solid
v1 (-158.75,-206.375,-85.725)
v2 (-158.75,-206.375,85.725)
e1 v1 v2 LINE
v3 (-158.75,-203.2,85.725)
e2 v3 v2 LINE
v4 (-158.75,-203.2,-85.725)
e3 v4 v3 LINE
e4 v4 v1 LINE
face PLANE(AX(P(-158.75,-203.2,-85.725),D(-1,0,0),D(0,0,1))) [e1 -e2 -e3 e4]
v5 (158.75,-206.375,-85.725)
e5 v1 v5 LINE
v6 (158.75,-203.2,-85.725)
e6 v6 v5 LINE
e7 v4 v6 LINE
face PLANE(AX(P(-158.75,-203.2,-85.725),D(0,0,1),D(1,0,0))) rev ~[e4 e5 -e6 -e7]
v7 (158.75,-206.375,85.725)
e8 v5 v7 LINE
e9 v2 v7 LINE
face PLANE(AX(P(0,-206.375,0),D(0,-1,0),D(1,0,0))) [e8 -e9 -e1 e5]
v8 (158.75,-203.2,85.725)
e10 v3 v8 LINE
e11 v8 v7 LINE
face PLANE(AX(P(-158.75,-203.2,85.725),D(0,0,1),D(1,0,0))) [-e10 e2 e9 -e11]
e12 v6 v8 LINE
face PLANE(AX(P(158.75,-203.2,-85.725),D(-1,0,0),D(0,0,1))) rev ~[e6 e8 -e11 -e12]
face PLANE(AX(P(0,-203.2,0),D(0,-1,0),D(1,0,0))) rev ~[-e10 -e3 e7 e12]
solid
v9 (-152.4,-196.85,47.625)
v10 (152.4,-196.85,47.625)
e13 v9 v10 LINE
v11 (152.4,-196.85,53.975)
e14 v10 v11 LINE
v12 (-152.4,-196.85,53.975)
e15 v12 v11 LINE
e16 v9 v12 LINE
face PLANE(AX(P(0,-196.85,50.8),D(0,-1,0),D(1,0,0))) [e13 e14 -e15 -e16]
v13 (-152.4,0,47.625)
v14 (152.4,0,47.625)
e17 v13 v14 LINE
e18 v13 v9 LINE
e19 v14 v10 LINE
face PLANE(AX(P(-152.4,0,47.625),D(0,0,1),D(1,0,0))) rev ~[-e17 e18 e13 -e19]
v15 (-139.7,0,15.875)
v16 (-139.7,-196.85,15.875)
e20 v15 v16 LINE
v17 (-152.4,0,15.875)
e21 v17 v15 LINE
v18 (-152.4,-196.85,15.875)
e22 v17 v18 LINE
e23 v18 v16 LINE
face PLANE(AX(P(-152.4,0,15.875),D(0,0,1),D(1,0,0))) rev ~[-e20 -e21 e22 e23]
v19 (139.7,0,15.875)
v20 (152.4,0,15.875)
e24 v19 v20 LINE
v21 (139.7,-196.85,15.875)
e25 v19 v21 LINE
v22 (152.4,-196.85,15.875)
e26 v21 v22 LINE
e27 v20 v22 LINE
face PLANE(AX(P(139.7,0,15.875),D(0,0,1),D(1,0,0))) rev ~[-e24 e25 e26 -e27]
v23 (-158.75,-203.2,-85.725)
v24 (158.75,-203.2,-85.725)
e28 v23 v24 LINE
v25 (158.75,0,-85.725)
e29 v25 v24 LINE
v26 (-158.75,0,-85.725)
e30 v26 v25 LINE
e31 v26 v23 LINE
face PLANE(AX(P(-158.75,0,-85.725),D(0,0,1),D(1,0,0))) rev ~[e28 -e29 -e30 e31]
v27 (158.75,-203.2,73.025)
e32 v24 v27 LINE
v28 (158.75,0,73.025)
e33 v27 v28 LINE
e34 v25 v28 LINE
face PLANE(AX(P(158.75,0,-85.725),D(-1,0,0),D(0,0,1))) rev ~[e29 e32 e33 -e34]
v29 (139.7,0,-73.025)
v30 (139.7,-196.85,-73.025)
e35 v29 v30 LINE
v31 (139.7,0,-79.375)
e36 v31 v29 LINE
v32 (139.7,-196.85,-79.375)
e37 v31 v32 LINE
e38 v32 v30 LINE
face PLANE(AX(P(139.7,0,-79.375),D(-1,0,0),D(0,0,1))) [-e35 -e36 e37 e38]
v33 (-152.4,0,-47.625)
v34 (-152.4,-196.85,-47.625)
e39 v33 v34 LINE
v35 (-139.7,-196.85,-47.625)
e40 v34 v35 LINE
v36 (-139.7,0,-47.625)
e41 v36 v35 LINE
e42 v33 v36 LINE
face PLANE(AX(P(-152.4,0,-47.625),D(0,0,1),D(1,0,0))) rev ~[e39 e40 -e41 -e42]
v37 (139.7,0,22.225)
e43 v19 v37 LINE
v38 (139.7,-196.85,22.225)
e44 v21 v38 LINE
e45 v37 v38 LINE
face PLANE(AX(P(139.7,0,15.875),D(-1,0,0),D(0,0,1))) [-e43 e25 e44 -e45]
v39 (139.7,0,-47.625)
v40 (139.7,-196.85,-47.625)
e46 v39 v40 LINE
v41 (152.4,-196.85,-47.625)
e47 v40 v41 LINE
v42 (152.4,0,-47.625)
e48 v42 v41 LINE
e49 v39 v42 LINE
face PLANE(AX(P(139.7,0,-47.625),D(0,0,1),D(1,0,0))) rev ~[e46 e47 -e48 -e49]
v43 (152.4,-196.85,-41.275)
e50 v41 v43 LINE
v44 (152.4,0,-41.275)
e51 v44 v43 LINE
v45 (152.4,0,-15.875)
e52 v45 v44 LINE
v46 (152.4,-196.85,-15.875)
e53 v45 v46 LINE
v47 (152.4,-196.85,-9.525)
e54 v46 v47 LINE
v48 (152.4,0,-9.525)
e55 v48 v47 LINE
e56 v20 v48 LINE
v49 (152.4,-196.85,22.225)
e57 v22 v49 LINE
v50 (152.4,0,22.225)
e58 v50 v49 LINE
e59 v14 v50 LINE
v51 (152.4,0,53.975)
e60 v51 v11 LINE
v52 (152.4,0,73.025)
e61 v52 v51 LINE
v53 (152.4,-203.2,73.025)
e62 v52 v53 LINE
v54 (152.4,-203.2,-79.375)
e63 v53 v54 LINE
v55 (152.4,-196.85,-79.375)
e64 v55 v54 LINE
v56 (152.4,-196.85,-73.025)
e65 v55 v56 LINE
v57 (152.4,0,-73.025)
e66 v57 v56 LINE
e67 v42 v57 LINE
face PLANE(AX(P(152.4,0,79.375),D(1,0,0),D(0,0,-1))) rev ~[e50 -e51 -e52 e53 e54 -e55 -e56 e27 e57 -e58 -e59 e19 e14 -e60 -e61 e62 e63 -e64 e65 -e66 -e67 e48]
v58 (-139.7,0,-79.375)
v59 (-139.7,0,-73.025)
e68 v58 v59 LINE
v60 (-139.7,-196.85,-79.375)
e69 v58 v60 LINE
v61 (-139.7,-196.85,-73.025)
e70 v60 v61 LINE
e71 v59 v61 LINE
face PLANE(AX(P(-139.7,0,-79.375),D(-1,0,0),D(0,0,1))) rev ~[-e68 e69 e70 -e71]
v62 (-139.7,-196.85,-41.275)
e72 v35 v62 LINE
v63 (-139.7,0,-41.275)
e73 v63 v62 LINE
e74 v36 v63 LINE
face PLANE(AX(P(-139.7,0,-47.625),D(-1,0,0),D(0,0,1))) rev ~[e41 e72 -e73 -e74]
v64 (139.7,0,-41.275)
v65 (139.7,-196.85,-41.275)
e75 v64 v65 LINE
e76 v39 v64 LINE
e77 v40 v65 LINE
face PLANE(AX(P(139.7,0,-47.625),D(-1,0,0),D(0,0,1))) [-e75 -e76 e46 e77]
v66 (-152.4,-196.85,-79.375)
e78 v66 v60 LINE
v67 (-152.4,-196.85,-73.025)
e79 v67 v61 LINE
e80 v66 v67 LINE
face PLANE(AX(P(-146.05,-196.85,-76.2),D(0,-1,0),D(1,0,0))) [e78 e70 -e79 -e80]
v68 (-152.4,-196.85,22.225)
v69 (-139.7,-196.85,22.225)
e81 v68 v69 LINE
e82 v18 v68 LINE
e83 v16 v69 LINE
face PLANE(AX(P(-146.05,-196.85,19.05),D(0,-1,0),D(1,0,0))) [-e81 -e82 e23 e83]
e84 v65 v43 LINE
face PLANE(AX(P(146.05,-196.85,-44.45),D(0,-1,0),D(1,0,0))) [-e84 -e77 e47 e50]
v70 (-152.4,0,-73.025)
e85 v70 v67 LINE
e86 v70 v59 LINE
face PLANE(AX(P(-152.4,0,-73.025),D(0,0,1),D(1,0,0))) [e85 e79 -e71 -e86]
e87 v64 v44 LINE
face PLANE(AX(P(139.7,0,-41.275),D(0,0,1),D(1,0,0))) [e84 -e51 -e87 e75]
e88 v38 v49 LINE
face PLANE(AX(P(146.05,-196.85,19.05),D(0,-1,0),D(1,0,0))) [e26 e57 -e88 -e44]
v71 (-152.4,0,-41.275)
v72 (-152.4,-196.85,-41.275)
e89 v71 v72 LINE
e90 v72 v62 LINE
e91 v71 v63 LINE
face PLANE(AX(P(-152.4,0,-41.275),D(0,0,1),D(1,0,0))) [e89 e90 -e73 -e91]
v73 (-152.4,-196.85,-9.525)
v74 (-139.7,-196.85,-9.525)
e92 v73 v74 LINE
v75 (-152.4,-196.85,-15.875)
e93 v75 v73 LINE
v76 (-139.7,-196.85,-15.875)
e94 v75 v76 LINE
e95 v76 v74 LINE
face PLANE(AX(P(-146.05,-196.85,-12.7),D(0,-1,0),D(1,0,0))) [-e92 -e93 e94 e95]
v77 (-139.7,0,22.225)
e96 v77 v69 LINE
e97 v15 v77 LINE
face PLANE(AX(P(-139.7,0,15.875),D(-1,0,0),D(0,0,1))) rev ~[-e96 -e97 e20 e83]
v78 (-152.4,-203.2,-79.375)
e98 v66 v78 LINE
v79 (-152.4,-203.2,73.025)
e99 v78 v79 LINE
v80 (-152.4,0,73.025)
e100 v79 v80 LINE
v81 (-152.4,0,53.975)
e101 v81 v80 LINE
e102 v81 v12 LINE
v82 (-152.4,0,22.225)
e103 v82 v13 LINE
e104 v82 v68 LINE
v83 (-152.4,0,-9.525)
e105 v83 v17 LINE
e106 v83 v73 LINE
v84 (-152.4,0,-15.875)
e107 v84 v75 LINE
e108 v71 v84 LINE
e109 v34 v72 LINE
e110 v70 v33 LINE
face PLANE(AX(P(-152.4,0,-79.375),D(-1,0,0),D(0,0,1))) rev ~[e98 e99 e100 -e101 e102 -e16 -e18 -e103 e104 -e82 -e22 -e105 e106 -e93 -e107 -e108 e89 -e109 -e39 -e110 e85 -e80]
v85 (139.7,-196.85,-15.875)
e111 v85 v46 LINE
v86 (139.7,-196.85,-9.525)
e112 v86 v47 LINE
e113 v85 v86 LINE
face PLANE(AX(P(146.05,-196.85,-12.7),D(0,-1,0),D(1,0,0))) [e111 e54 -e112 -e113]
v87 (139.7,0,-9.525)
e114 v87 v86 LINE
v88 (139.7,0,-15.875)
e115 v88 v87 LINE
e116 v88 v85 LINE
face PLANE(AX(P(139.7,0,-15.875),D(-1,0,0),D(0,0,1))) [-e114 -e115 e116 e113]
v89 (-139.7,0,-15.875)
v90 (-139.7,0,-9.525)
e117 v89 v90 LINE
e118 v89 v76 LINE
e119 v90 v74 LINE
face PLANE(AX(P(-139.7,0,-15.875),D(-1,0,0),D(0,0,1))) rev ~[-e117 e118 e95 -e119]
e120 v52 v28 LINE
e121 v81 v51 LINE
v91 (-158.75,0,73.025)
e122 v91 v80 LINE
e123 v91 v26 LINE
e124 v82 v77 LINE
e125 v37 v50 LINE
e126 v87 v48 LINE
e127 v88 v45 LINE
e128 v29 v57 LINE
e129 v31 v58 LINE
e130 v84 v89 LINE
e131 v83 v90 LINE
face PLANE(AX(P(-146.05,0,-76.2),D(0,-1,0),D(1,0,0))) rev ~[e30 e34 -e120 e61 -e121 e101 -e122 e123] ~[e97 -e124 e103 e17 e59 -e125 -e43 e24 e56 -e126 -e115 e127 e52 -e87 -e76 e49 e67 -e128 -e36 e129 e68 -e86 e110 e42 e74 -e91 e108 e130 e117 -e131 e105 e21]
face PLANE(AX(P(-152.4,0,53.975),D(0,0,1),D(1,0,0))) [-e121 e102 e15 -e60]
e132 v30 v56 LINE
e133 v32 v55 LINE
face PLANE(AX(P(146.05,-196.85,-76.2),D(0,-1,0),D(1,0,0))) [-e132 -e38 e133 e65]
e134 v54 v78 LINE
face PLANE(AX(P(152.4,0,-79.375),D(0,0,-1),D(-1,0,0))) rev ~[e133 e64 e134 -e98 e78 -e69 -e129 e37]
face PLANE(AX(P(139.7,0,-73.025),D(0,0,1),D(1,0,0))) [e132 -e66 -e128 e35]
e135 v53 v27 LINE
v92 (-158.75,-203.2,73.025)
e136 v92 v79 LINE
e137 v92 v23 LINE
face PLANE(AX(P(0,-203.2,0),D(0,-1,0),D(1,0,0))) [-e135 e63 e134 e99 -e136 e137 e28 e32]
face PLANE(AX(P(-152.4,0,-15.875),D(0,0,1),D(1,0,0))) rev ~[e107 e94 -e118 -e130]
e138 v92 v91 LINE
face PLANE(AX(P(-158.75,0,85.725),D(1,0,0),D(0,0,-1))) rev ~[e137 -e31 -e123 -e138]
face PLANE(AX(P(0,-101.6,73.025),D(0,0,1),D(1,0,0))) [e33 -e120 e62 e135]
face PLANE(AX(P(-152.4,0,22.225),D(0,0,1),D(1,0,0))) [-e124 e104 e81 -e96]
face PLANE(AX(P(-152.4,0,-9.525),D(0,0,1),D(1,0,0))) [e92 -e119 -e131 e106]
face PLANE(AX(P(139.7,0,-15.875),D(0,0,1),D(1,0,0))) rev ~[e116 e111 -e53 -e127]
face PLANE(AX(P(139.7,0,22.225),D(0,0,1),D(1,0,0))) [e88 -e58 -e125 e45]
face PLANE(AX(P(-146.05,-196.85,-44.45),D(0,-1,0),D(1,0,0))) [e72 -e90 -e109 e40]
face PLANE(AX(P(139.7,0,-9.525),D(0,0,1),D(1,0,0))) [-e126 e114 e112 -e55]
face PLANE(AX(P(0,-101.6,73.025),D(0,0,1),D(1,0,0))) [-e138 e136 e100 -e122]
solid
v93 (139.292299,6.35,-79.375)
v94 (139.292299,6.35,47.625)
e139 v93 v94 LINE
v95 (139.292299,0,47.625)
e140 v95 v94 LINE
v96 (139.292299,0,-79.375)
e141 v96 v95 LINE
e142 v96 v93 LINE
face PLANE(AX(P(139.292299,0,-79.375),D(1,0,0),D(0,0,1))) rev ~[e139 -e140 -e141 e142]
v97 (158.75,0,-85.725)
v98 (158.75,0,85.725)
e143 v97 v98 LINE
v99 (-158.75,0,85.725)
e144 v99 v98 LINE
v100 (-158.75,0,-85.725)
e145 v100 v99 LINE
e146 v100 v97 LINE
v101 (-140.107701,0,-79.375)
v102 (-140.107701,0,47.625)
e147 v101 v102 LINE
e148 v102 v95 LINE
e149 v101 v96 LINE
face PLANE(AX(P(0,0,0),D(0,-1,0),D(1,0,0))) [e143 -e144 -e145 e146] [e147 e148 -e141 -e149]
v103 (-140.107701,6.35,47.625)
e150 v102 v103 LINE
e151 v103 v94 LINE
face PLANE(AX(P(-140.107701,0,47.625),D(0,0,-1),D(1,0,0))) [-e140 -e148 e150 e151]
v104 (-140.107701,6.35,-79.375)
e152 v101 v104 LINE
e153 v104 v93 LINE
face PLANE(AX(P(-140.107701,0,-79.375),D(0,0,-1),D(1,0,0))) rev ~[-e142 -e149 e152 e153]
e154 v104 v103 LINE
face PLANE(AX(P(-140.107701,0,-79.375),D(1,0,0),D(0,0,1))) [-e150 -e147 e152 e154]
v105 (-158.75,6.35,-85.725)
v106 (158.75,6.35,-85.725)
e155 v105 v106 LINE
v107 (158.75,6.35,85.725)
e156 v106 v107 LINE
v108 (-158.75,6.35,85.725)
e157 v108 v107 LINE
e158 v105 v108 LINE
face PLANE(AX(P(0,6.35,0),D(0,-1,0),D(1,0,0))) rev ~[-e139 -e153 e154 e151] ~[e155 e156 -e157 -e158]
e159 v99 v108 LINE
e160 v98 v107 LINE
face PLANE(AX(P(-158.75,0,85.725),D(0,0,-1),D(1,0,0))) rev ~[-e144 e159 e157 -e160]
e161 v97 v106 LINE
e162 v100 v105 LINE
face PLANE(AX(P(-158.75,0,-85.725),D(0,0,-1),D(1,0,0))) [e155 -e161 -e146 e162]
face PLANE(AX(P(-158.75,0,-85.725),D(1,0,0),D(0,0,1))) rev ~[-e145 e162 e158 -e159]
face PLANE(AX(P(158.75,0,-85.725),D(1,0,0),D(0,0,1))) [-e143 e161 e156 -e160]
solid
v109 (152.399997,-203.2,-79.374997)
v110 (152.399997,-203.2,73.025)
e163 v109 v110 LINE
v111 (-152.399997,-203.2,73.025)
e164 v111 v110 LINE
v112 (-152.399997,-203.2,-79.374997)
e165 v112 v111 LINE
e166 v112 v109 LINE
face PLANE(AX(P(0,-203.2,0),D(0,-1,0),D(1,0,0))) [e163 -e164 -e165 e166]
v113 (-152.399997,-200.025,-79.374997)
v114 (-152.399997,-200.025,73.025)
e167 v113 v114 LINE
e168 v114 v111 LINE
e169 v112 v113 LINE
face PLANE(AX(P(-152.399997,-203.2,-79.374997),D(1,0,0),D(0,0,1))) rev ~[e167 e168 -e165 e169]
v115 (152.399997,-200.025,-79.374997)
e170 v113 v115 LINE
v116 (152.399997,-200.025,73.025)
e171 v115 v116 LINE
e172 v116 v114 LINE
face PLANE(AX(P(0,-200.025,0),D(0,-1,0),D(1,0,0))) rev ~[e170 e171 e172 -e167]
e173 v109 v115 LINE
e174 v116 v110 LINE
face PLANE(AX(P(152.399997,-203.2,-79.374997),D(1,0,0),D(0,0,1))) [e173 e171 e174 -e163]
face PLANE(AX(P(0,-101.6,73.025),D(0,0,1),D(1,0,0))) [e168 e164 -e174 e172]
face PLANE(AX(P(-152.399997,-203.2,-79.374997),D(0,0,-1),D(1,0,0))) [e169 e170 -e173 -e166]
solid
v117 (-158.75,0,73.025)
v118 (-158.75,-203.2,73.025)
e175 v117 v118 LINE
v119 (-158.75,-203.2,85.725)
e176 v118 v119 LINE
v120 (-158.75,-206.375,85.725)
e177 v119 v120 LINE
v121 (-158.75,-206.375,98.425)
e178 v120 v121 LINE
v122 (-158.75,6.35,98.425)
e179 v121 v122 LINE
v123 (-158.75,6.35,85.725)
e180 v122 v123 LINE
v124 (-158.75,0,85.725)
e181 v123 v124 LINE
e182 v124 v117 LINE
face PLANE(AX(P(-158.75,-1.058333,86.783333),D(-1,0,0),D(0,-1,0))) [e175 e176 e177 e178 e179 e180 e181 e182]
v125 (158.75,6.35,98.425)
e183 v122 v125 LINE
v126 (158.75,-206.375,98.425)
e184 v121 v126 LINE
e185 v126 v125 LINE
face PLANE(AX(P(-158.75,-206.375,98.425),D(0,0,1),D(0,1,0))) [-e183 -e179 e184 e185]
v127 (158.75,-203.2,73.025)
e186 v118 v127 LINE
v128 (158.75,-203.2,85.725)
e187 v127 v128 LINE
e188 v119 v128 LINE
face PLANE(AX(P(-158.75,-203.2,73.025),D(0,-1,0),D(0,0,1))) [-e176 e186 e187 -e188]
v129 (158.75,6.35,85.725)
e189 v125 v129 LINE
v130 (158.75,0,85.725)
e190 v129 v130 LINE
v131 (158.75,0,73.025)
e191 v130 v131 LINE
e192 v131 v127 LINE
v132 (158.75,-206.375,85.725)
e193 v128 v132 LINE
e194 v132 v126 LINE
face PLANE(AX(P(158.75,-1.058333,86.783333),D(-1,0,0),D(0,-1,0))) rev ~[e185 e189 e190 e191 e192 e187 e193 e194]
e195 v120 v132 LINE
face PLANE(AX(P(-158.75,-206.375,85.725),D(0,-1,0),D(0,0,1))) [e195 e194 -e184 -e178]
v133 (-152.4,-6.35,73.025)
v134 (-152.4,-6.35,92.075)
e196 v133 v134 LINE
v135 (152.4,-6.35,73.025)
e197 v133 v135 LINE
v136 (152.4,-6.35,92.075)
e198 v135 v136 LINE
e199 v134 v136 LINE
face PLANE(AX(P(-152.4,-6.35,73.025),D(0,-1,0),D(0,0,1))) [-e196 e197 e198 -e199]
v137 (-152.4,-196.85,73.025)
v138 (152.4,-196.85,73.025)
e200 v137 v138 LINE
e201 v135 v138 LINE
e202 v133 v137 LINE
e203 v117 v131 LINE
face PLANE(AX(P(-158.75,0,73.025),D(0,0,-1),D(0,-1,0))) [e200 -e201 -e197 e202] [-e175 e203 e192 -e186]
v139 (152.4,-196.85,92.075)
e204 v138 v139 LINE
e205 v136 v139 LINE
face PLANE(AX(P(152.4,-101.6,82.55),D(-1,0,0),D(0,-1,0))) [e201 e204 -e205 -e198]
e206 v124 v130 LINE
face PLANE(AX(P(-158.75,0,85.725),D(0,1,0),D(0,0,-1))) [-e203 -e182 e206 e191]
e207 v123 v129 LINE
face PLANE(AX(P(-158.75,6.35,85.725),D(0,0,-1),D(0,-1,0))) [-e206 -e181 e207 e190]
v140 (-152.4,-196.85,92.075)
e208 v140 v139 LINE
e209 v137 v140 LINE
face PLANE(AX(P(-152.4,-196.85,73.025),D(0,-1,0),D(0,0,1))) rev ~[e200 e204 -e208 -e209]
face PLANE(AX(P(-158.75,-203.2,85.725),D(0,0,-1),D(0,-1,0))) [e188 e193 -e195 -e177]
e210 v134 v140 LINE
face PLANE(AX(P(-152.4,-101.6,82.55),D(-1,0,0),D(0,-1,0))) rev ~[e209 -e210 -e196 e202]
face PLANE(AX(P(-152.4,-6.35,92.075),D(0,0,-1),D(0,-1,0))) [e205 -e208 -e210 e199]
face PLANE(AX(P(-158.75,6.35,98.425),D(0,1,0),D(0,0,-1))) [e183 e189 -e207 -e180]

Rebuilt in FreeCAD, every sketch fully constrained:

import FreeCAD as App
import Part
import Sketcher

V = App.Vector
Q = App.Units.Quantity

doc = App.newDocument("Part")
body = doc.addObject("PartDesign::Body", "Body")

# Sketch on XZ plane
sketch1 = body.newObject("Sketcher::SketchObject", "Sketch")
sketch1.AttachmentSupport = (doc.getObject("XZ_Plane"), [""])
sketch1.MapMode = "FlatFace"
sketch1.addGeometry(Part.LineSegment(V(159, 86, 0), V(-159, 86, 0)), False)
sketch1.addGeometry(Part.LineSegment(V(-159, 86, 0), V(-159, -86, 0)), False)
sketch1.addGeometry(Part.LineSegment(V(-159, -86, 0), V(159, -86, 0)), False)
sketch1.addGeometry(Part.LineSegment(V(159, -86, 0), V(159, 86, 0)), False)
sketch1.addGeometry(Part.LineSegment(V(-152, -79, 0), V(-152, 79, 0)), False)
sketch1.addGeometry(Part.LineSegment(V(-152, 79, 0), V(152, 79, 0)), False)
sketch1.addGeometry(Part.LineSegment(V(152, 79, 0), V(152, -79, 0)), False)
sketch1.addGeometry(Part.LineSegment(V(152, -79, 0), V(-152, -79, 0)), False)
sketch1.addConstraint(Sketcher.Constraint("Coincident", 0, 2, 1, 1))
sketch1.addConstraint(Sketcher.Constraint("Coincident", 1, 2, 2, 1))
sketch1.addConstraint(Sketcher.Constraint("Coincident", 2, 2, 3, 1))
sketch1.addConstraint(Sketcher.Constraint("Coincident", 3, 2, 0, 1))
sketch1.addConstraint(Sketcher.Constraint("Coincident", 4, 2, 5, 1))
sketch1.addConstraint(Sketcher.Constraint("Coincident", 5, 2, 6, 1))
sketch1.addConstraint(Sketcher.Constraint("Coincident", 6, 2, 7, 1))
sketch1.addConstraint(Sketcher.Constraint("Coincident", 7, 2, 4, 1))
sketch1.addConstraint(Sketcher.Constraint("Horizontal", 0))
sketch1.addConstraint(Sketcher.Constraint("Vertical", 1))
sketch1.addConstraint(Sketcher.Constraint("Horizontal", 2))
sketch1.addConstraint(Sketcher.Constraint("Vertical", 3))
sketch1.addConstraint(Sketcher.Constraint("Vertical", 4))
sketch1.addConstraint(Sketcher.Constraint("Horizontal", 5))
sketch1.addConstraint(Sketcher.Constraint("Vertical", 6))
sketch1.addConstraint(Sketcher.Constraint("Horizontal", 7))
sketch1.addConstraint(Sketcher.Constraint("Symmetric", 0, 2, 2, 2, -1, 1))
sketch1.addConstraint(Sketcher.Constraint("Symmetric", 4, 2, 6, 2, -1, 1))
sketch1.addConstraint(Sketcher.Constraint("DistanceX", 5, 1, 5, 2, Q("12 in")))
sketch1.addConstraint(Sketcher.Constraint("DistanceX", 0, 2, 0, 1, Q("12.5 in")))
sketch1.addConstraint(Sketcher.Constraint("DistanceY", 1, 2, 1, 1, Q("6.75 in")))
sketch1.addConstraint(Sketcher.Constraint("DistanceY", 4, 1, 4, 2, Q("6.25 in")))
pad1 = body.newObject("PartDesign::Pad", "Pad")
pad1.Profile = sketch1
pad1.Length = Q("8 in")

# Sketch on XZ plane
sketch2 = body.newObject("Sketcher::SketchObject", "Sketch001")
sketch2.AttachmentSupport = (doc.getObject("XZ_Plane"), [""])
sketch2.MapMode = "FlatFace"
sketch2.addGeometry(Part.LineSegment(V(-152, 54, 0), V(-152, 48, 0)), False)
sketch2.addGeometry(Part.LineSegment(V(-152, 48, 0), V(152, 48, 0)), False)
sketch2.addGeometry(Part.LineSegment(V(152, 48, 0), V(152, 54, 0)), False)
sketch2.addGeometry(Part.LineSegment(V(152, 54, 0), V(-152, 54, 0)), False)
sketch2.addGeometry(Part.LineSegment(V(-152, -10, 0), V(-152, -16, 0)), False)
sketch2.addGeometry(Part.LineSegment(V(-152, -16, 0), V(-140, -16, 0)), False)
sketch2.addGeometry(Part.LineSegment(V(-140, -16, 0), V(-140, -10, 0)), False)
sketch2.addGeometry(Part.LineSegment(V(-140, -10, 0), V(-152, -10, 0)), False)
sketch2.addGeometry(Part.LineSegment(V(-152, -41, 0), V(-152, -48, 0)), False)
sketch2.addGeometry(Part.LineSegment(V(-152, -48, 0), V(-140, -48, 0)), False)
sketch2.addGeometry(Part.LineSegment(V(-140, -48, 0), V(-140, -41, 0)), False)
sketch2.addGeometry(Part.LineSegment(V(-140, -41, 0), V(-152, -41, 0)), False)
sketch2.addGeometry(Part.LineSegment(V(-152, -73, 0), V(-152, -79, 0)), False)
sketch2.addGeometry(Part.LineSegment(V(-152, -79, 0), V(-140, -79, 0)), False)
sketch2.addGeometry(Part.LineSegment(V(-140, -79, 0), V(-140, -73, 0)), False)
sketch2.addGeometry(Part.LineSegment(V(-140, -73, 0), V(-152, -73, 0)), False)
sketch2.addGeometry(Part.LineSegment(V(140, -73, 0), V(140, -79, 0)), False)
sketch2.addGeometry(Part.LineSegment(V(140, -79, 0), V(152, -79, 0)), False)
sketch2.addGeometry(Part.LineSegment(V(152, -79, 0), V(152, -73, 0)), False)
sketch2.addGeometry(Part.LineSegment(V(152, -73, 0), V(140, -73, 0)), False)
sketch2.addGeometry(Part.LineSegment(V(140, -41, 0), V(140, -48, 0)), False)
sketch2.addGeometry(Part.LineSegment(V(140, -48, 0), V(152, -48, 0)), False)
sketch2.addGeometry(Part.LineSegment(V(152, -48, 0), V(152, -41, 0)), False)
sketch2.addGeometry(Part.LineSegment(V(152, -41, 0), V(140, -41, 0)), False)
sketch2.addGeometry(Part.LineSegment(V(140, -10, 0), V(140, -16, 0)), False)
sketch2.addGeometry(Part.LineSegment(V(140, -16, 0), V(152, -16, 0)), False)
sketch2.addGeometry(Part.LineSegment(V(152, -16, 0), V(152, -10, 0)), False)
sketch2.addGeometry(Part.LineSegment(V(152, -10, 0), V(140, -10, 0)), False)
sketch2.addGeometry(Part.LineSegment(V(-152, 22, 0), V(-152, 16, 0)), False)
sketch2.addGeometry(Part.LineSegment(V(-152, 16, 0), V(-140, 16, 0)), False)
sketch2.addGeometry(Part.LineSegment(V(-140, 16, 0), V(-140, 22, 0)), False)
sketch2.addGeometry(Part.LineSegment(V(-140, 22, 0), V(-152, 22, 0)), False)
sketch2.addGeometry(Part.LineSegment(V(140, 22, 0), V(140, 16, 0)), False)
sketch2.addGeometry(Part.LineSegment(V(140, 16, 0), V(152, 16, 0)), False)
sketch2.addGeometry(Part.LineSegment(V(152, 16, 0), V(152, 22, 0)), False)
sketch2.addGeometry(Part.LineSegment(V(152, 22, 0), V(140, 22, 0)), False)
sketch2.addConstraint(Sketcher.Constraint("Coincident", 0, 2, 1, 1))
sketch2.addConstraint(Sketcher.Constraint("Coincident", 1, 2, 2, 1))
sketch2.addConstraint(Sketcher.Constraint("Coincident", 2, 2, 3, 1))
sketch2.addConstraint(Sketcher.Constraint("Coincident", 3, 2, 0, 1))
sketch2.addConstraint(Sketcher.Constraint("Coincident", 4, 2, 5, 1))
sketch2.addConstraint(Sketcher.Constraint("Coincident", 5, 2, 6, 1))
sketch2.addConstraint(Sketcher.Constraint("Coincident", 6, 2, 7, 1))
sketch2.addConstraint(Sketcher.Constraint("Coincident", 7, 2, 4, 1))
sketch2.addConstraint(Sketcher.Constraint("Coincident", 8, 2, 9, 1))
sketch2.addConstraint(Sketcher.Constraint("Coincident", 9, 2, 10, 1))
sketch2.addConstraint(Sketcher.Constraint("Coincident", 10, 2, 11, 1))
sketch2.addConstraint(Sketcher.Constraint("Coincident", 11, 2, 8, 1))
sketch2.addConstraint(Sketcher.Constraint("Coincident", 12, 2, 13, 1))
sketch2.addConstraint(Sketcher.Constraint("Coincident", 13, 2, 14, 1))
sketch2.addConstraint(Sketcher.Constraint("Coincident", 14, 2, 15, 1))
sketch2.addConstraint(Sketcher.Constraint("Coincident", 15, 2, 12, 1))
sketch2.addConstraint(Sketcher.Constraint("Coincident", 16, 2, 17, 1))
sketch2.addConstraint(Sketcher.Constraint("Coincident", 17, 2, 18, 1))
sketch2.addConstraint(Sketcher.Constraint("Coincident", 18, 2, 19, 1))
sketch2.addConstraint(Sketcher.Constraint("Coincident", 19, 2, 16, 1))
sketch2.addConstraint(Sketcher.Constraint("Coincident", 20, 2, 21, 1))
sketch2.addConstraint(Sketcher.Constraint("Coincident", 21, 2, 22, 1))
sketch2.addConstraint(Sketcher.Constraint("Coincident", 22, 2, 23, 1))
sketch2.addConstraint(Sketcher.Constraint("Coincident", 23, 2, 20, 1))
sketch2.addConstraint(Sketcher.Constraint("Coincident", 24, 2, 25, 1))
sketch2.addConstraint(Sketcher.Constraint("Coincident", 25, 2, 26, 1))
sketch2.addConstraint(Sketcher.Constraint("Coincident", 26, 2, 27, 1))
sketch2.addConstraint(Sketcher.Constraint("Coincident", 27, 2, 24, 1))
sketch2.addConstraint(Sketcher.Constraint("Coincident", 28, 2, 29, 1))
sketch2.addConstraint(Sketcher.Constraint("Coincident", 29, 2, 30, 1))
sketch2.addConstraint(Sketcher.Constraint("Coincident", 30, 2, 31, 1))
sketch2.addConstraint(Sketcher.Constraint("Coincident", 31, 2, 28, 1))
sketch2.addConstraint(Sketcher.Constraint("Coincident", 32, 2, 33, 1))
sketch2.addConstraint(Sketcher.Constraint("Coincident", 33, 2, 34, 1))
sketch2.addConstraint(Sketcher.Constraint("Coincident", 34, 2, 35, 1))
sketch2.addConstraint(Sketcher.Constraint("Coincident", 35, 2, 32, 1))
sketch2.addConstraint(Sketcher.Constraint("Vertical", 0))
sketch2.addConstraint(Sketcher.Constraint("Horizontal", 1))
sketch2.addConstraint(Sketcher.Constraint("Vertical", 2))
sketch2.addConstraint(Sketcher.Constraint("Horizontal", 3))
sketch2.addConstraint(Sketcher.Constraint("Vertical", 4))
sketch2.addConstraint(Sketcher.Constraint("Horizontal", 5))
sketch2.addConstraint(Sketcher.Constraint("Vertical", 6))
sketch2.addConstraint(Sketcher.Constraint("Horizontal", 7))
sketch2.addConstraint(Sketcher.Constraint("Vertical", 8))
sketch2.addConstraint(Sketcher.Constraint("Horizontal", 9))
sketch2.addConstraint(Sketcher.Constraint("Vertical", 10))
sketch2.addConstraint(Sketcher.Constraint("Horizontal", 11))
sketch2.addConstraint(Sketcher.Constraint("Vertical", 12))
sketch2.addConstraint(Sketcher.Constraint("Horizontal", 13))
sketch2.addConstraint(Sketcher.Constraint("Vertical", 14))
sketch2.addConstraint(Sketcher.Constraint("Horizontal", 15))
sketch2.addConstraint(Sketcher.Constraint("Vertical", 16))
sketch2.addConstraint(Sketcher.Constraint("Horizontal", 17))
sketch2.addConstraint(Sketcher.Constraint("Vertical", 18))
sketch2.addConstraint(Sketcher.Constraint("Horizontal", 19))
sketch2.addConstraint(Sketcher.Constraint("Vertical", 20))
sketch2.addConstraint(Sketcher.Constraint("Horizontal", 21))
sketch2.addConstraint(Sketcher.Constraint("Vertical", 22))
sketch2.addConstraint(Sketcher.Constraint("Horizontal", 23))
sketch2.addConstraint(Sketcher.Constraint("Vertical", 24))
sketch2.addConstraint(Sketcher.Constraint("Horizontal", 25))
sketch2.addConstraint(Sketcher.Constraint("Vertical", 26))
sketch2.addConstraint(Sketcher.Constraint("Horizontal", 27))
sketch2.addConstraint(Sketcher.Constraint("Vertical", 28))
sketch2.addConstraint(Sketcher.Constraint("Horizontal", 29))
sketch2.addConstraint(Sketcher.Constraint("Vertical", 30))
sketch2.addConstraint(Sketcher.Constraint("Horizontal", 31))
sketch2.addConstraint(Sketcher.Constraint("Vertical", 32))
sketch2.addConstraint(Sketcher.Constraint("Horizontal", 33))
sketch2.addConstraint(Sketcher.Constraint("Vertical", 34))
sketch2.addConstraint(Sketcher.Constraint("Horizontal", 35))
sketch2.addConstraint(Sketcher.Constraint("Symmetric", 1, 2, 8, 2, -1, 1))
sketch2.addConstraint(Sketcher.Constraint("Symmetric", 0, 2, 21, 2, -1, 1))
sketch2.addConstraint(Sketcher.Constraint("Symmetric", 25, 2, 28, 2, -1, 1))
sketch2.addConstraint(Sketcher.Constraint("Symmetric", 5, 2, 32, 2, -1, 1))
sketch2.addConstraint(Sketcher.Constraint("Symmetric", 13, 2, 16, 2, -2))
sketch2.addConstraint(Sketcher.Constraint("Symmetric", 15, 2, 18, 2, -2))
sketch2.addConstraint(Sketcher.Constraint("Symmetric", 11, 2, 22, 2, -2))
sketch2.addConstraint(Sketcher.Constraint("Symmetric", 5, 2, 24, 2, -2))
sketch2.addConstraint(Sketcher.Constraint("Symmetric", 7, 2, 26, 2, -2))
sketch2.addConstraint(Sketcher.Constraint("Symmetric", 31, 2, 34, 2, -2))
sketch2.addConstraint(Sketcher.Constraint("Vertical", 3, 2, 4, 2))
sketch2.addConstraint(Sketcher.Constraint("Vertical", 6, 2, 9, 2))
sketch2.addConstraint(Sketcher.Constraint("Vertical", 11, 2, 12, 2))
sketch2.addConstraint(Sketcher.Constraint("Vertical", 10, 2, 13, 2))
sketch2.addConstraint(Sketcher.Constraint("Vertical", 19, 2, 20, 2))
sketch2.addConstraint(Sketcher.Constraint("Vertical", 14, 2, 29, 2))
sketch2.addConstraint(Sketcher.Constraint("Equal", 2, 4))
sketch2.addConstraint(Sketcher.Constraint("Equal", 6, 8))
sketch2.addConstraint(Sketcher.Constraint("Equal", 10, 12))
sketch2.addConstraint(Sketcher.Constraint("Equal", 26, 28))
sketch2.addConstraint(Sketcher.Constraint("DistanceX", 1, 1, 1, 2, Q("12 in")))
sketch2.addConstraint(Sketcher.Constraint("DistanceX", 5, 1, 5, 2, Q("0.5 in")))
sketch2.addConstraint(Sketcher.Constraint("DistanceY", 10, 2, 5, 2, Q("1 in")))
sketch2.addConstraint(Sketcher.Constraint("DistanceY", 14, 2, 9, 2, Q("1 in")))
sketch2.addConstraint(Sketcher.Constraint("DistanceY", 16, 2, 1, 2, Q("5 in")))
sketch2.addConstraint(Sketcher.Constraint("DistanceY", 7, 2, 28, 2, Q("1 in")))
pad2 = body.newObject("PartDesign::Pad", "Pad001")
pad2.Profile = sketch2
pad2.Length = Q("7.75 in")
body2 = doc.addObject("PartDesign::Body", "Body001")

# Sketch on XZ plane
sketch3 = body2.newObject("Sketcher::SketchObject", "Sketch002")
sketch3.AttachmentSupport = (doc.getObject("XZ_Plane001"), [""])
sketch3.MapMode = "FlatFace"
sketch3.AttachmentOffset = App.Placement(V(0, 0, 8 * 25.4), App.Rotation())
sketch3.addGeometry(Part.LineSegment(V(-159, 86, 0), V(-159, -86, 0)), False)
sketch3.addGeometry(Part.LineSegment(V(-159, -86, 0), V(159, -86, 0)), False)
sketch3.addGeometry(Part.LineSegment(V(159, -86, 0), V(159, 86, 0)), False)
sketch3.addGeometry(Part.LineSegment(V(159, 86, 0), V(-159, 86, 0)), False)
sketch3.addConstraint(Sketcher.Constraint("Coincident", 0, 2, 1, 1))
sketch3.addConstraint(Sketcher.Constraint("Coincident", 1, 2, 2, 1))
sketch3.addConstraint(Sketcher.Constraint("Coincident", 2, 2, 3, 1))
sketch3.addConstraint(Sketcher.Constraint("Coincident", 3, 2, 0, 1))
sketch3.addConstraint(Sketcher.Constraint("Vertical", 0))
sketch3.addConstraint(Sketcher.Constraint("Horizontal", 1))
sketch3.addConstraint(Sketcher.Constraint("Vertical", 2))
sketch3.addConstraint(Sketcher.Constraint("Horizontal", 3))
sketch3.addConstraint(Sketcher.Constraint("Symmetric", 0, 2, 2, 2, -1, 1))
sketch3.addConstraint(Sketcher.Constraint("DistanceX", 1, 1, 1, 2, Q("12.5 in")))
sketch3.addConstraint(Sketcher.Constraint("DistanceY", 0, 2, 0, 1, Q("6.75 in")))
pad3 = body2.newObject("PartDesign::Pad", "Pad002")
pad3.Profile = sketch3
pad3.Length = Q("0.125 in")
body3 = doc.addObject("PartDesign::Body", "Body002")

# Sketch on XZ plane
sketch4 = body3.newObject("Sketcher::SketchObject", "Sketch003")
sketch4.AttachmentSupport = (doc.getObject("XZ_Plane002"), [""])
sketch4.MapMode = "FlatFace"
sketch4.addGeometry(Part.LineSegment(V(-159, 86, 0), V(-159, -86, 0)), False)
sketch4.addGeometry(Part.LineSegment(V(-159, -86, 0), V(159, -86, 0)), False)
sketch4.addGeometry(Part.LineSegment(V(159, -86, 0), V(159, 86, 0)), False)
sketch4.addGeometry(Part.LineSegment(V(159, 86, 0), V(-159, 86, 0)), False)
sketch4.addGeometry(Part.LineSegment(V(139, -79, 0), V(-140, -79, 0)), False)
sketch4.addGeometry(Part.LineSegment(V(-140, -79, 0), V(-140, 48, 0)), False)
sketch4.addGeometry(Part.LineSegment(V(-140, 48, 0), V(139, 48, 0)), False)
sketch4.addGeometry(Part.LineSegment(V(139, 48, 0), V(139, -79, 0)), False)
sketch4.addConstraint(Sketcher.Constraint("Coincident", 0, 2, 1, 1))
sketch4.addConstraint(Sketcher.Constraint("Coincident", 1, 2, 2, 1))
sketch4.addConstraint(Sketcher.Constraint("Coincident", 2, 2, 3, 1))
sketch4.addConstraint(Sketcher.Constraint("Coincident", 3, 2, 0, 1))
sketch4.addConstraint(Sketcher.Constraint("Coincident", 4, 2, 5, 1))
sketch4.addConstraint(Sketcher.Constraint("Coincident", 5, 2, 6, 1))
sketch4.addConstraint(Sketcher.Constraint("Coincident", 6, 2, 7, 1))
sketch4.addConstraint(Sketcher.Constraint("Coincident", 7, 2, 4, 1))
sketch4.addConstraint(Sketcher.Constraint("Vertical", 0))
sketch4.addConstraint(Sketcher.Constraint("Horizontal", 1))
sketch4.addConstraint(Sketcher.Constraint("Vertical", 2))
sketch4.addConstraint(Sketcher.Constraint("Horizontal", 3))
sketch4.addConstraint(Sketcher.Constraint("Horizontal", 4))
sketch4.addConstraint(Sketcher.Constraint("Vertical", 5))
sketch4.addConstraint(Sketcher.Constraint("Horizontal", 6))
sketch4.addConstraint(Sketcher.Constraint("Vertical", 7))
sketch4.addConstraint(Sketcher.Constraint("Symmetric", 0, 2, 2, 2, -1, 1))
sketch4.addConstraint(Sketcher.Constraint("DistanceX", 4, 2, 4, 1, Q("11 in")))
sketch4.addConstraint(Sketcher.Constraint("DistanceY", 5, 1, 5, 2, Q("5 in")))
sketch4.addConstraint(Sketcher.Constraint("DistanceX", 1, 1, 1, 2, Q("12.5 in")))
sketch4.addConstraint(Sketcher.Constraint("DistanceY", 0, 2, 0, 1, Q("6.75 in")))
sketch4.addConstraint(Sketcher.Constraint("DistanceY", 4, 2, 3, 2, Q("6.5 in")))
sketch4.addConstraint(Sketcher.Constraint("DistanceX", 4, 2, -1, 1, Q("140.107701 mm")))
pad4 = body3.newObject("PartDesign::Pad", "Pad003")
pad4.Profile = sketch4
pad4.Length = Q("0.25 in")
pad4.Reversed = True
body4 = doc.addObject("PartDesign::Body", "Body003")

# Sketch on XZ plane
sketch5 = body4.newObject("Sketcher::SketchObject", "Sketch004")
sketch5.AttachmentSupport = (doc.getObject("XZ_Plane003"), [""])
sketch5.MapMode = "FlatFace"
sketch5.AttachmentOffset = App.Placement(V(0, 0, 8 * 25.4), App.Rotation())
sketch5.addGeometry(Part.LineSegment(V(-152, 79, 0), V(-152, -79, 0)), False)
sketch5.addGeometry(Part.LineSegment(V(-152, -79, 0), V(152, -79, 0)), False)
sketch5.addGeometry(Part.LineSegment(V(152, -79, 0), V(152, 79, 0)), False)
sketch5.addGeometry(Part.LineSegment(V(152, 79, 0), V(-152, 79, 0)), False)
sketch5.addConstraint(Sketcher.Constraint("Coincident", 0, 2, 1, 1))
sketch5.addConstraint(Sketcher.Constraint("Coincident", 1, 2, 2, 1))
sketch5.addConstraint(Sketcher.Constraint("Coincident", 2, 2, 3, 1))
sketch5.addConstraint(Sketcher.Constraint("Coincident", 3, 2, 0, 1))
sketch5.addConstraint(Sketcher.Constraint("Vertical", 0))
sketch5.addConstraint(Sketcher.Constraint("Horizontal", 1))
sketch5.addConstraint(Sketcher.Constraint("Vertical", 2))
sketch5.addConstraint(Sketcher.Constraint("Horizontal", 3))
sketch5.addConstraint(Sketcher.Constraint("Symmetric", 0, 2, 2, 2, -1, 1))
sketch5.addConstraint(Sketcher.Constraint("DistanceX", 0, 2, -1, 1, Q("5.9999999 in")))
sketch5.addConstraint(Sketcher.Constraint("DistanceY", 0, 2, -1, 1, Q("3.1249999 in")))
pad5 = body4.newObject("PartDesign::Pad", "Pad004")
pad5.Profile = sketch5
pad5.Length = Q("0.125 in")
pad5.Reversed = True
body5 = doc.addObject("PartDesign::Body", "Body004")

# Sketch on XY plane
sketch6 = body5.newObject("Sketcher::SketchObject", "Sketch005")
sketch6.AttachmentSupport = (doc.getObject("XY_Plane004"), [""])
sketch6.MapMode = "FlatFace"
sketch6.AttachmentOffset = App.Placement(V(0, 0, 2.875 * 25.4), App.Rotation())
sketch6.addGeometry(Part.LineSegment(V(-159, 0, 0), V(-159, -203, 0)), False)
sketch6.addGeometry(Part.LineSegment(V(-159, -203, 0), V(159, -203, 0)), False)
sketch6.addGeometry(Part.LineSegment(V(159, -203, 0), V(159, 0, 0)), False)
sketch6.addGeometry(Part.LineSegment(V(159, 0, 0), V(-159, 0, 0)), False)
sketch6.addConstraint(Sketcher.Constraint("Coincident", 0, 2, 1, 1))
sketch6.addConstraint(Sketcher.Constraint("Coincident", 1, 2, 2, 1))
sketch6.addConstraint(Sketcher.Constraint("Coincident", 2, 2, 3, 1))
sketch6.addConstraint(Sketcher.Constraint("Coincident", 3, 2, 0, 1))
sketch6.addConstraint(Sketcher.Constraint("Vertical", 0))
sketch6.addConstraint(Sketcher.Constraint("Horizontal", 1))
sketch6.addConstraint(Sketcher.Constraint("Vertical", 2))
sketch6.addConstraint(Sketcher.Constraint("Horizontal", 3))
sketch6.addConstraint(Sketcher.Constraint("Symmetric", 2, 2, 3, 2, -1, 1))
sketch6.addConstraint(Sketcher.Constraint("DistanceY", 0, 2, 0, 1, Q("8 in")))
sketch6.addConstraint(Sketcher.Constraint("DistanceX", 1, 1, 1, 2, Q("12.5 in")))
pad6 = body5.newObject("PartDesign::Pad", "Pad005")
pad6.Profile = sketch6
pad6.Length = Q("1 in")
doc.recompute()

body6 = doc.addObject("PartDesign::Body", "Body005")
body6.BaseFeature = body5
boolean = body.newObject("PartDesign::Boolean", "Boolean")
boolean.Type = "Cut"
boolean.addObjects([body6])
doc.recompute()

boolean2 = body4.newObject("PartDesign::Boolean", "Boolean001")
boolean2.Type = "Cut"
boolean2.addObjects([body5])
body7 = doc.addObject("PartDesign::Body", "Body006")

# Sketch on YZ plane
sketch7 = body7.newObject("Sketcher::SketchObject", "Sketch006")
sketch7.AttachmentSupport = (doc.getObject("YZ_Plane006"), [""])
sketch7.MapMode = "FlatFace"
sketch7.AttachmentOffset = App.Placement(V(0, 0, -6.25 * 25.4), App.Rotation())
sketch7.addGeometry(Part.LineSegment(V(6.3, 98.4, 0), V(6.3, 85.7, 0)), False)
sketch7.addGeometry(Part.LineSegment(V(6.3, 85.7, 0), V(0, 85.7, 0)), False)
sketch7.addGeometry(Part.LineSegment(V(0, 85.7, 0), V(0, 73, 0)), False)
sketch7.addGeometry(Part.LineSegment(V(0, 73, 0), V(-203.2, 73, 0)), False)
sketch7.addGeometry(Part.LineSegment(V(-203.2, 73, 0), V(-203.2, 85.7, 0)), False)
sketch7.addGeometry(Part.LineSegment(V(-203.2, 85.7, 0), V(-206.4, 85.7, 0)), False)
sketch7.addGeometry(Part.LineSegment(V(-206.4, 85.7, 0), V(-206.4, 98.4, 0)), False)
sketch7.addGeometry(Part.LineSegment(V(-206.4, 98.4, 0), V(6.3, 98.4, 0)), False)
sketch7.addConstraint(Sketcher.Constraint("Coincident", 0, 2, 1, 1))
sketch7.addConstraint(Sketcher.Constraint("Coincident", 1, 2, 2, 1))
sketch7.addConstraint(Sketcher.Constraint("Coincident", 2, 2, 3, 1))
sketch7.addConstraint(Sketcher.Constraint("Coincident", 3, 2, 4, 1))
sketch7.addConstraint(Sketcher.Constraint("Coincident", 4, 2, 5, 1))
sketch7.addConstraint(Sketcher.Constraint("Coincident", 5, 2, 6, 1))
sketch7.addConstraint(Sketcher.Constraint("Coincident", 6, 2, 7, 1))
sketch7.addConstraint(Sketcher.Constraint("Coincident", 7, 2, 0, 1))
sketch7.addConstraint(Sketcher.Constraint("Vertical", 0))
sketch7.addConstraint(Sketcher.Constraint("Horizontal", 1))
sketch7.addConstraint(Sketcher.Constraint("Vertical", 2))
sketch7.addConstraint(Sketcher.Constraint("Horizontal", 3))
sketch7.addConstraint(Sketcher.Constraint("Vertical", 4))
sketch7.addConstraint(Sketcher.Constraint("Horizontal", 5))
sketch7.addConstraint(Sketcher.Constraint("Vertical", 6))
sketch7.addConstraint(Sketcher.Constraint("Horizontal", 7))
sketch7.addConstraint(Sketcher.Constraint("PointOnObject", 1, 2, -2))
sketch7.addConstraint(Sketcher.Constraint("Horizontal", 1, 2, 4, 2))
sketch7.addConstraint(Sketcher.Constraint("Equal", 0, 2))
sketch7.addConstraint(Sketcher.Constraint("DistanceX", 3, 2, 3, 1, Q("8 in")))
sketch7.addConstraint(Sketcher.Constraint("DistanceY", 0, 2, 0, 1, Q("0.5 in")))
sketch7.addConstraint(Sketcher.Constraint("DistanceX", 1, 2, 1, 1, Q("0.25 in")))
sketch7.addConstraint(Sketcher.Constraint("DistanceX", 5, 2, 5, 1, Q("0.125 in")))
sketch7.addConstraint(Sketcher.Constraint("DistanceY", -1, 1, 0, 2, Q("3.375 in")))
pad7 = body7.newObject("PartDesign::Pad", "Pad006")
pad7.Profile = sketch7
pad7.Length = Q("12.5 in")

# Sketch on YZ plane
sketch8 = body7.newObject("Sketcher::SketchObject", "Sketch007")
sketch8.AttachmentSupport = (doc.getObject("YZ_Plane006"), [""])
sketch8.MapMode = "FlatFace"
sketch8.AttachmentOffset = App.Placement(V(0, 0, -6 * 25.4), App.Rotation())
sketch8.addGeometry(Part.LineSegment(V(-6, 92, 0), V(-6, 73, 0)), False)
sketch8.addGeometry(Part.LineSegment(V(-6, 73, 0), V(-197, 73, 0)), False)
sketch8.addGeometry(Part.LineSegment(V(-197, 73, 0), V(-197, 92, 0)), False)
sketch8.addGeometry(Part.LineSegment(V(-197, 92, 0), V(-6, 92, 0)), False)
sketch8.addConstraint(Sketcher.Constraint("Coincident", 0, 2, 1, 1))
sketch8.addConstraint(Sketcher.Constraint("Coincident", 1, 2, 2, 1))
sketch8.addConstraint(Sketcher.Constraint("Coincident", 2, 2, 3, 1))
sketch8.addConstraint(Sketcher.Constraint("Coincident", 3, 2, 0, 1))
sketch8.addConstraint(Sketcher.Constraint("Vertical", 0))
sketch8.addConstraint(Sketcher.Constraint("Horizontal", 1))
sketch8.addConstraint(Sketcher.Constraint("Vertical", 2))
sketch8.addConstraint(Sketcher.Constraint("Horizontal", 3))
sketch8.addConstraint(Sketcher.Constraint("DistanceX", 1, 2, 1, 1, Q("7.5 in")))
sketch8.addConstraint(Sketcher.Constraint("DistanceY", 0, 2, 0, 1, Q("0.75 in")))
sketch8.addConstraint(Sketcher.Constraint("DistanceX", 0, 2, -1, 1, Q("0.25 in")))
sketch8.addConstraint(Sketcher.Constraint("DistanceY", -1, 1, 0, 2, Q("2.875 in")))
pocket1 = body7.newObject("PartDesign::Pocket", "Pocket")
pocket1.Profile = sketch8
pocket1.Length = Q("12 in")
pocket1.Reversed = True

doc.recompute()
